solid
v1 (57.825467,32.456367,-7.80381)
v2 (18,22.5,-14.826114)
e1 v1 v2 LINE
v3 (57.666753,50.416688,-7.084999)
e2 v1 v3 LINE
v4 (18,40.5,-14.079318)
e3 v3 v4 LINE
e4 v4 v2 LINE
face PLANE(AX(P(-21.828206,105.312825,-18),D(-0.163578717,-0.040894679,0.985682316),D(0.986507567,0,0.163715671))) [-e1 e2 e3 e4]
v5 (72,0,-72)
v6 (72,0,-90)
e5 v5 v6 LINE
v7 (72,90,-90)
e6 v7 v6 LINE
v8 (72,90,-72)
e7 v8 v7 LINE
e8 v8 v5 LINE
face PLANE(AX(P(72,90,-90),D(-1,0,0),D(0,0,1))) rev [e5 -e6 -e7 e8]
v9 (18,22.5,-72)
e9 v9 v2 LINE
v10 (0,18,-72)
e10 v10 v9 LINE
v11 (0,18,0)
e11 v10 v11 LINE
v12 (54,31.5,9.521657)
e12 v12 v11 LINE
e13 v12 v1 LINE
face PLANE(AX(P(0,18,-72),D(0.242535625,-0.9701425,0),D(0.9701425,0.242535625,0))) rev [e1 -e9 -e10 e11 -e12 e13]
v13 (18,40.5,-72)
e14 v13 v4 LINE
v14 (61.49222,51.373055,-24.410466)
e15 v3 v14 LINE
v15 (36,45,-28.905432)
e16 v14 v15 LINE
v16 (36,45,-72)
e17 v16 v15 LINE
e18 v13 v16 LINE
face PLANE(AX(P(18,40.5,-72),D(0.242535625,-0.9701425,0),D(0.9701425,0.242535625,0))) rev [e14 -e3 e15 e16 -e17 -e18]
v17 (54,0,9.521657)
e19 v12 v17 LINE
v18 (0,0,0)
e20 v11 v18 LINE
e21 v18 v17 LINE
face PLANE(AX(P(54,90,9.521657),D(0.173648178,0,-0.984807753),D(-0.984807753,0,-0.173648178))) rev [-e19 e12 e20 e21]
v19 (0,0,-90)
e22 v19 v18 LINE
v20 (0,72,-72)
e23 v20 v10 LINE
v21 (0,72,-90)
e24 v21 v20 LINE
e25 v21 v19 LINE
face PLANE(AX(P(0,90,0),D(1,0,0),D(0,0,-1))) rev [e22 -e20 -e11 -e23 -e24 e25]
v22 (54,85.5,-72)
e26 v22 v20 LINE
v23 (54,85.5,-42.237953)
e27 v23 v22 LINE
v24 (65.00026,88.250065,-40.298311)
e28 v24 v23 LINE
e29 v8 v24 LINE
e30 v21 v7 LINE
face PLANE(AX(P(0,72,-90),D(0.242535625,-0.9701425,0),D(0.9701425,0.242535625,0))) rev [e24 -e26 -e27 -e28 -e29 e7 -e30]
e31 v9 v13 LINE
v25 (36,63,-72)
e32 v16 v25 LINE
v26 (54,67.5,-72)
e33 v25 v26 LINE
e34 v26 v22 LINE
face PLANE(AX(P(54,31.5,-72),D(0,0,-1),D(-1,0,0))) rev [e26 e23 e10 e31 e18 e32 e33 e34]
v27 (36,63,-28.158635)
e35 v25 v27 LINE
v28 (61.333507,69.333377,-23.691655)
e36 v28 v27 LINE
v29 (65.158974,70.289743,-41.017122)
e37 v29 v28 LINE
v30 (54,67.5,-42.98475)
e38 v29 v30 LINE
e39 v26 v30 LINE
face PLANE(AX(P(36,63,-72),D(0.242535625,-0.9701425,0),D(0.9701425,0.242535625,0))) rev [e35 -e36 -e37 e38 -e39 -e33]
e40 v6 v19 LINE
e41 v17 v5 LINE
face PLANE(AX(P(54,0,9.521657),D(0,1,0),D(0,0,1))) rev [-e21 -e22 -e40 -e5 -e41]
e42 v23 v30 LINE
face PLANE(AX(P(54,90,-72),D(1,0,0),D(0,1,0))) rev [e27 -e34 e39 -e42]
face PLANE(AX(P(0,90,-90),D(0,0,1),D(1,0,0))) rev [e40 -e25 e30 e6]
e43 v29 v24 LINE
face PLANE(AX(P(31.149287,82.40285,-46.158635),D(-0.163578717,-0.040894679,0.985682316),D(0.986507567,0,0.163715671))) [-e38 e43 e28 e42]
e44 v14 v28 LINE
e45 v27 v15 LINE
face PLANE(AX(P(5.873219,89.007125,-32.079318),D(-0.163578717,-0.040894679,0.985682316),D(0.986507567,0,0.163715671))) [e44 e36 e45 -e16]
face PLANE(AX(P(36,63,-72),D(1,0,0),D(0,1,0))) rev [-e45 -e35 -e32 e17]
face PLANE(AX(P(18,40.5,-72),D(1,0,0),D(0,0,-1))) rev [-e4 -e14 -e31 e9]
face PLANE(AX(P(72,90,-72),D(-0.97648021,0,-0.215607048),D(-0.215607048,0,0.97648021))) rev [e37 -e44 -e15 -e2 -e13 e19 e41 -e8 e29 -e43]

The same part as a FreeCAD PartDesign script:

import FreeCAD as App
import Part
import Sketcher
from FreeCAD import Vector
Q = App.Units.Quantity

doc = App.newDocument("Part")
params = doc.addObject("Spreadsheet::Sheet", "Params")
for row, (alias, value) in enumerate([
    ("sketch1_width", "72 mm"),
    ("sketch1_height", "90 mm"),
    ("sketch1_height2", "18 mm"),
    ("pad1_length", "90 mm"),
    ("sketch2_width", "54 mm"),
    ("sketch2_height", "18 mm"),
    ("sketch2_height2", "72 mm"),
    ("sketch2_height3", "22.5 mm"),
    ("pocket1_length", "10 mm"),
    ("pocket1_length2", "72 mm"),
    ("sketch3_width", "72 mm"),
    ("sketch3_height", "18 mm"),
    ("sketch4_height", "18 mm"),
    ("pocket3_length", "90 mm"),
    ("sketch5_height", "18 mm"),
    ("pocket4_length", "50 mm"),
    ("sketch6_height", "18 mm"),
    ("pocket5_length", "20 mm"),
], start=1):
    params.set(f"A{row}", alias)
    params.set(f"B{row}", "=" + value)
    params.setAlias(f"B{row}", alias)

body = doc.addObject("PartDesign::Body", "Body")

sketch1 = doc.addObject("Sketcher::SketchObject", "Sketch")
body.addObject(sketch1)
sketch1.AttachmentSupport = (doc.XZ_Plane, [""])
sketch1.MapMode = "FlatFace"
sketch1.addGeometry([
    Part.LineSegment(Vector(0, -90, 0), Vector(0, 0, 0)),
    Part.LineSegment(Vector(0, 0, 0), Vector(54, 9.521657, 0)),
    Part.LineSegment(Vector(54, 9.521657, 0), Vector(72, -72, 0)),
    Part.LineSegment(Vector(72, -72, 0), Vector(72, -90, 0)),
    Part.LineSegment(Vector(72, -90, 0), Vector(0, -90, 0)),
], False)
sketch1.addConstraint([
    Sketcher.Constraint("Coincident", 0, 2, 1, 1),
    Sketcher.Constraint("Coincident", 1, 2, 2, 1),
    Sketcher.Constraint("Coincident", 2, 2, 3, 1),
    Sketcher.Constraint("Coincident", 3, 2, 4, 1),
    Sketcher.Constraint("Coincident", 4, 2, 0, 1),
    Sketcher.Constraint("Vertical", 0),
    Sketcher.Constraint("Vertical", 3),
    Sketcher.Constraint("Horizontal", 4),
    Sketcher.Constraint("Coincident", 0, 2, -1, 1),
    Sketcher.Constraint("DistanceX", 4, 2, 4, 1, Q("72 mm")),
    Sketcher.Constraint("DistanceY", 0, 1, 0, 2, Q("90 mm")),
    Sketcher.Constraint("DistanceY", 3, 2, 3, 1, Q("18 mm")),
    Sketcher.Constraint("Angle", 1, Q("10 deg")),
    Sketcher.Constraint("DistanceX", -1, 1, 1, 2, Q("54 mm")),
])
sketch1.setExpression("Constraints[9]", "Params.sketch1_width")
sketch1.setExpression("Constraints[10]", "Params.sketch1_height")
sketch1.setExpression("Constraints[11]", "Params.sketch1_height2")
pad1 = doc.addObject("PartDesign::Pad", "Pad")
body.addObject(pad1)
pad1.Profile = sketch1
pad1.setExpression("Length", "Params.pad1_length")
pad1.Reversed = True

sketch2 = doc.addObject("Sketcher::SketchObject", "Sketch001")
body.addObject(sketch2)
sketch2.AttachmentSupport = (doc.XY_Plane, [""])
sketch2.MapMode = "FlatFace"
sketch2.addGeometry([
    Part.LineSegment(Vector(18, 22.5, 0), Vector(18, 40.5, 0)),
    Part.LineSegment(Vector(18, 40.5, 0), Vector(36, 45, 0)),
    Part.LineSegment(Vector(36, 45, 0), Vector(36, 63, 0)),
    Part.LineSegment(Vector(36, 63, 0), Vector(54, 67.5, 0)),
    Part.LineSegment(Vector(54, 67.5, 0), Vector(54, 90, 0)),
    Part.LineSegment(Vector(54, 90, 0), Vector(0, 90, 0)),
    Part.LineSegment(Vector(0, 90, 0), Vector(0, 18, 0)),
    Part.LineSegment(Vector(0, 18, 0), Vector(18, 22.5, 0)),
], False)
sketch2.addConstraint([
    Sketcher.Constraint("Coincident", 0, 2, 1, 1),
    Sketcher.Constraint("Coincident", 1, 2, 2, 1),
    Sketcher.Constraint("Coincident", 2, 2, 3, 1),
    Sketcher.Constraint("Coincident", 3, 2, 4, 1),
    Sketcher.Constraint("Coincident", 4, 2, 5, 1),
    Sketcher.Constraint("Coincident", 5, 2, 6, 1),
    Sketcher.Constraint("Coincident", 6, 2, 7, 1),
    Sketcher.Constraint("Coincident", 7, 2, 0, 1),
    Sketcher.Constraint("Vertical", 0),
    Sketcher.Constraint("Vertical", 2),
    Sketcher.Constraint("Vertical", 4),
    Sketcher.Constraint("Horizontal", 5),
    Sketcher.Constraint("Vertical", 6),
    Sketcher.Constraint("PointOnObject", 5, 2, -2),
    Sketcher.Constraint("Parallel", 1, 3),
    Sketcher.Constraint("Parallel", 3, 7),
    Sketcher.Constraint("Equal", 0, 2),
    Sketcher.Constraint("Equal", 1, 3),
    Sketcher.Constraint("Equal", 3, 7),
    Sketcher.Constraint("DistanceX", 5, 2, 5, 1, Q("54 mm")),
    Sketcher.Constraint("DistanceY", 0, 1, 0, 2, Q("18 mm")),
    Sketcher.Constraint("DistanceY", 6, 2, 6, 1, Q("72 mm")),
    Sketcher.Constraint("DistanceY", 4, 1, 4, 2, Q("22.5 mm")),
    Sketcher.Constraint("DistanceY", -1, 1, 1, 2, Q("45 mm")),
])
sketch2.setExpression("Constraints[19]", "Params.sketch2_width")
sketch2.setExpression("Constraints[20]", "Params.sketch2_height")
sketch2.setExpression("Constraints[21]", "Params.sketch2_height2")
sketch2.setExpression("Constraints[22]", "Params.sketch2_height3")
pocket1 = doc.addObject("PartDesign::Pocket", "Pocket")
body.addObject(pocket1)
pocket1.Profile = sketch2
pocket1.Type = "TwoLengths"
pocket1.setExpression("Length", "Params.pocket1_length")
pocket1.setExpression("Length2", "Params.pocket1_length2")
pocket1.Reversed = True

sketch3 = doc.addObject("Sketcher::SketchObject", "Sketch002")
body.addObject(sketch3)
sketch3.AttachmentSupport = (doc.XY_Plane, [""])
sketch3.MapMode = "FlatFace"
sketch3.addGeometry([
    Part.LineSegment(Vector(72, 90, 0), Vector(0, 90, 0)),
    Part.LineSegment(Vector(0, 90, 0), Vector(0, 72, 0)),
    Part.LineSegment(Vector(0, 72, 0), Vector(72, 90, 0)),
], False)
sketch3.addConstraint([
    Sketcher.Constraint("Coincident", 0, 2, 1, 1),
    Sketcher.Constraint("Coincident", 1, 2, 2, 1),
    Sketcher.Constraint("Coincident", 2, 2, 0, 1),
    Sketcher.Constraint("Horizontal", 0),
    Sketcher.Constraint("Vertical", 1),
    Sketcher.Constraint("PointOnObject", 0, 2, -2),
    Sketcher.Constraint("DistanceX", 0, 2, 0, 1, Q("72 mm")),
    Sketcher.Constraint("DistanceY", 1, 2, 1, 1, Q("18 mm")),
    Sketcher.Constraint("DistanceY", -1, 1, 0, 2, Q("90 mm")),
])
sketch3.setExpression("Constraints[6]", "Params.sketch3_width")
sketch3.setExpression("Constraints[7]", "Params.sketch3_height")
pocket2 = doc.addObject("PartDesign::Pocket", "Pocket001")
body.addObject(pocket2)
pocket2.Profile = sketch3
pocket2.Type = "ThroughAll"
pocket2.Midplane = True

sketch4 = doc.addObject("Sketcher::SketchObject", "Sketch003")
body.addObject(sketch4)
sketch4.Placement = App.Placement(Vector(-4.235294, 16.941176, 0), App.Rotation(Vector(-0.9701425, -0.242535625, 0), Vector(0, 0, 1), Vector(-0.242535625, 0.9701425, 0), "ZXY"))
sketch4.addGeometry([
    Part.LineSegment(Vector(-85.203659, 13.828337, 0), Vector(-92.892158, -2.856451, 0)),
    Part.LineSegment(Vector(-92.892158, -2.856451, 0), Vector(-4.365641, -18, 0)),
    Part.LineSegment(Vector(-4.365641, -18, 0), Vector(-4.365641, 0, 0)),
    Part.LineSegment(Vector(-4.365641, 0, 0), Vector(-85.203659, 13.828337, 0)),
], False)
sketch4.addConstraint([
    Sketcher.Constraint("Coincident", 0, 2, 1, 1),
    Sketcher.Constraint("Coincident", 1, 2, 2, 1),
    Sketcher.Constraint("Coincident", 2, 2, 3, 1),
    Sketcher.Constraint("Coincident", 3, 2, 0, 1),
    Sketcher.Constraint("Vertical", 2),
    Sketcher.Constraint("PointOnObject", 2, 2, -1),
    Sketcher.Constraint("DistanceY", 2, 1, 2, 2, Q("18 mm")),
    Sketcher.Constraint("DistanceX", 0, 2, 3, 2, Q("7.6885 mm")),
    Sketcher.Constraint("Distance", 0, Q("18.371041 mm")),
    Sketcher.Constraint("DistanceX", 0, 2, -1, 1, Q("92.892158 mm")),
    Sketcher.Constraint("DistanceY", 0, 2, -1, 1, Q("2.856451 mm")),
    Sketcher.Constraint("DistanceX", 1, 2, -1, 1, Q("4.365641 mm")),
])
sketch4.setExpression("Constraints[6]", "Params.sketch4_height")
pocket3 = doc.addObject("PartDesign::Pocket", "Pocket002")
body.addObject(pocket3)
pocket3.Profile = sketch4
pocket3.setExpression("Length", "Params.pocket3_length")
pocket3.Reversed = True

sketch5 = doc.addObject("Sketcher::SketchObject", "Sketch004")
body.addObject(sketch5)
sketch5.Placement = App.Placement(Vector(-8.470588, 33.882353, 0), App.Rotation(Vector(-0.9701425, -0.242535625, 0), Vector(0, 0, 1), Vector(-0.242535625, 0.9701425, 0), "ZXY"))
sketch5.addGeometry([
    Part.LineSegment(Vector(-27.285258, -14.079318, 0), Vector(-101.742779, -1.342443, 0)),
    Part.LineSegment(Vector(-101.742779, -1.342443, 0), Vector(-101.770582, -19.337687, 0)),
    Part.LineSegment(Vector(-101.770582, -19.337687, 0), Vector(-27.285258, -32.079318, 0)),
    Part.LineSegment(Vector(-27.285258, -32.079318, 0), Vector(-27.285258, -14.079318, 0)),
], False)
sketch5.addConstraint([
    Sketcher.Constraint("Coincident", 0, 2, 1, 1),
    Sketcher.Constraint("Coincident", 1, 2, 2, 1),
    Sketcher.Constraint("Coincident", 2, 2, 3, 1),
    Sketcher.Constraint("Coincident", 3, 2, 0, 1),
    Sketcher.Constraint("Vertical", 3),
    Sketcher.Constraint("Parallel", 0, 2),
    Sketcher.Constraint("DistanceY", 3, 1, 3, 2, Q("18 mm")),
    Sketcher.Constraint("DistanceX", 0, 2, -1, 1, Q("101.742779 mm")),
    Sketcher.Constraint("DistanceX", 1, 2, -1, 1, Q("101.770582 mm")),
    Sketcher.Constraint("DistanceY", 2, 2, 1, 2, Q("12.741631 mm")),
    Sketcher.Constraint("DistanceX", 0, 2, 2, 2, Q("74.457522 mm")),
    Sketcher.Constraint("DistanceY", 0, 2, -1, 1, Q("1.342443 mm")),
])
sketch5.setExpression("Constraints[6]", "Params.sketch5_height")
pocket4 = doc.addObject("PartDesign::Pocket", "Pocket003")
body.addObject(pocket4)
pocket4.Profile = sketch5
pocket4.setExpression("Length", "Params.pocket4_length")
pocket4.Reversed = True

sketch6 = doc.addObject("Sketcher::SketchObject", "Sketch005")
body.addObject(sketch6)
sketch6.Placement = App.Placement(Vector(-12.705882, 50.823529, 0), App.Rotation(Vector(-0.9701425, -0.242535625, 0), Vector(0, 0, 1), Vector(-0.242535625, 0.9701425, 0), "ZXY"))
sketch6.addGeometry([
    Part.LineSegment(Vector(-50.204874, -28.158635, 0), Vector(-102.913339, -19.142204, 0)),
    Part.LineSegment(Vector(-102.913339, -19.142204, 0), Vector(-106.827474, -36.472643, 0)),
    Part.LineSegment(Vector(-106.827474, -36.472643, 0), Vector(-50.204874, -46.158635, 0)),
    Part.LineSegment(Vector(-50.204874, -46.158635, 0), Vector(-50.204874, -28.158635, 0)),
], False)
sketch6.addConstraint([
    Sketcher.Constraint("Coincident", 0, 2, 1, 1),
    Sketcher.Constraint("Coincident", 1, 2, 2, 1),
    Sketcher.Constraint("Coincident", 2, 2, 3, 1),
    Sketcher.Constraint("Coincident", 3, 2, 0, 1),
    Sketcher.Constraint("Vertical", 3),
    Sketcher.Constraint("Parallel", 0, 2),
    Sketcher.Constraint("DistanceY", 3, 1, 3, 2, Q("18 mm")),
    Sketcher.Constraint("DistanceX", 1, 2, 2, 2, Q("56.6226 mm")),
    Sketcher.Constraint("Distance", 0, Q("53.474089 mm")),
    Sketcher.Constraint("Distance", 1, Q("17.766952 mm")),
    Sketcher.Constraint("DistanceX", 0, 2, -1, 1, Q("102.913339 mm")),
    Sketcher.Constraint("DistanceY", 0, 2, -1, 1, Q("19.142204 mm")),
])
sketch6.setExpression("Constraints[6]", "Params.sketch6_height")
pocket5 = doc.addObject("PartDesign::Pocket", "Pocket004")
body.addObject(pocket5)
pocket5.Profile = sketch6
pocket5.setExpression("Length", "Params.pocket5_length")
pocket5.Reversed = True

doc.recompute()
